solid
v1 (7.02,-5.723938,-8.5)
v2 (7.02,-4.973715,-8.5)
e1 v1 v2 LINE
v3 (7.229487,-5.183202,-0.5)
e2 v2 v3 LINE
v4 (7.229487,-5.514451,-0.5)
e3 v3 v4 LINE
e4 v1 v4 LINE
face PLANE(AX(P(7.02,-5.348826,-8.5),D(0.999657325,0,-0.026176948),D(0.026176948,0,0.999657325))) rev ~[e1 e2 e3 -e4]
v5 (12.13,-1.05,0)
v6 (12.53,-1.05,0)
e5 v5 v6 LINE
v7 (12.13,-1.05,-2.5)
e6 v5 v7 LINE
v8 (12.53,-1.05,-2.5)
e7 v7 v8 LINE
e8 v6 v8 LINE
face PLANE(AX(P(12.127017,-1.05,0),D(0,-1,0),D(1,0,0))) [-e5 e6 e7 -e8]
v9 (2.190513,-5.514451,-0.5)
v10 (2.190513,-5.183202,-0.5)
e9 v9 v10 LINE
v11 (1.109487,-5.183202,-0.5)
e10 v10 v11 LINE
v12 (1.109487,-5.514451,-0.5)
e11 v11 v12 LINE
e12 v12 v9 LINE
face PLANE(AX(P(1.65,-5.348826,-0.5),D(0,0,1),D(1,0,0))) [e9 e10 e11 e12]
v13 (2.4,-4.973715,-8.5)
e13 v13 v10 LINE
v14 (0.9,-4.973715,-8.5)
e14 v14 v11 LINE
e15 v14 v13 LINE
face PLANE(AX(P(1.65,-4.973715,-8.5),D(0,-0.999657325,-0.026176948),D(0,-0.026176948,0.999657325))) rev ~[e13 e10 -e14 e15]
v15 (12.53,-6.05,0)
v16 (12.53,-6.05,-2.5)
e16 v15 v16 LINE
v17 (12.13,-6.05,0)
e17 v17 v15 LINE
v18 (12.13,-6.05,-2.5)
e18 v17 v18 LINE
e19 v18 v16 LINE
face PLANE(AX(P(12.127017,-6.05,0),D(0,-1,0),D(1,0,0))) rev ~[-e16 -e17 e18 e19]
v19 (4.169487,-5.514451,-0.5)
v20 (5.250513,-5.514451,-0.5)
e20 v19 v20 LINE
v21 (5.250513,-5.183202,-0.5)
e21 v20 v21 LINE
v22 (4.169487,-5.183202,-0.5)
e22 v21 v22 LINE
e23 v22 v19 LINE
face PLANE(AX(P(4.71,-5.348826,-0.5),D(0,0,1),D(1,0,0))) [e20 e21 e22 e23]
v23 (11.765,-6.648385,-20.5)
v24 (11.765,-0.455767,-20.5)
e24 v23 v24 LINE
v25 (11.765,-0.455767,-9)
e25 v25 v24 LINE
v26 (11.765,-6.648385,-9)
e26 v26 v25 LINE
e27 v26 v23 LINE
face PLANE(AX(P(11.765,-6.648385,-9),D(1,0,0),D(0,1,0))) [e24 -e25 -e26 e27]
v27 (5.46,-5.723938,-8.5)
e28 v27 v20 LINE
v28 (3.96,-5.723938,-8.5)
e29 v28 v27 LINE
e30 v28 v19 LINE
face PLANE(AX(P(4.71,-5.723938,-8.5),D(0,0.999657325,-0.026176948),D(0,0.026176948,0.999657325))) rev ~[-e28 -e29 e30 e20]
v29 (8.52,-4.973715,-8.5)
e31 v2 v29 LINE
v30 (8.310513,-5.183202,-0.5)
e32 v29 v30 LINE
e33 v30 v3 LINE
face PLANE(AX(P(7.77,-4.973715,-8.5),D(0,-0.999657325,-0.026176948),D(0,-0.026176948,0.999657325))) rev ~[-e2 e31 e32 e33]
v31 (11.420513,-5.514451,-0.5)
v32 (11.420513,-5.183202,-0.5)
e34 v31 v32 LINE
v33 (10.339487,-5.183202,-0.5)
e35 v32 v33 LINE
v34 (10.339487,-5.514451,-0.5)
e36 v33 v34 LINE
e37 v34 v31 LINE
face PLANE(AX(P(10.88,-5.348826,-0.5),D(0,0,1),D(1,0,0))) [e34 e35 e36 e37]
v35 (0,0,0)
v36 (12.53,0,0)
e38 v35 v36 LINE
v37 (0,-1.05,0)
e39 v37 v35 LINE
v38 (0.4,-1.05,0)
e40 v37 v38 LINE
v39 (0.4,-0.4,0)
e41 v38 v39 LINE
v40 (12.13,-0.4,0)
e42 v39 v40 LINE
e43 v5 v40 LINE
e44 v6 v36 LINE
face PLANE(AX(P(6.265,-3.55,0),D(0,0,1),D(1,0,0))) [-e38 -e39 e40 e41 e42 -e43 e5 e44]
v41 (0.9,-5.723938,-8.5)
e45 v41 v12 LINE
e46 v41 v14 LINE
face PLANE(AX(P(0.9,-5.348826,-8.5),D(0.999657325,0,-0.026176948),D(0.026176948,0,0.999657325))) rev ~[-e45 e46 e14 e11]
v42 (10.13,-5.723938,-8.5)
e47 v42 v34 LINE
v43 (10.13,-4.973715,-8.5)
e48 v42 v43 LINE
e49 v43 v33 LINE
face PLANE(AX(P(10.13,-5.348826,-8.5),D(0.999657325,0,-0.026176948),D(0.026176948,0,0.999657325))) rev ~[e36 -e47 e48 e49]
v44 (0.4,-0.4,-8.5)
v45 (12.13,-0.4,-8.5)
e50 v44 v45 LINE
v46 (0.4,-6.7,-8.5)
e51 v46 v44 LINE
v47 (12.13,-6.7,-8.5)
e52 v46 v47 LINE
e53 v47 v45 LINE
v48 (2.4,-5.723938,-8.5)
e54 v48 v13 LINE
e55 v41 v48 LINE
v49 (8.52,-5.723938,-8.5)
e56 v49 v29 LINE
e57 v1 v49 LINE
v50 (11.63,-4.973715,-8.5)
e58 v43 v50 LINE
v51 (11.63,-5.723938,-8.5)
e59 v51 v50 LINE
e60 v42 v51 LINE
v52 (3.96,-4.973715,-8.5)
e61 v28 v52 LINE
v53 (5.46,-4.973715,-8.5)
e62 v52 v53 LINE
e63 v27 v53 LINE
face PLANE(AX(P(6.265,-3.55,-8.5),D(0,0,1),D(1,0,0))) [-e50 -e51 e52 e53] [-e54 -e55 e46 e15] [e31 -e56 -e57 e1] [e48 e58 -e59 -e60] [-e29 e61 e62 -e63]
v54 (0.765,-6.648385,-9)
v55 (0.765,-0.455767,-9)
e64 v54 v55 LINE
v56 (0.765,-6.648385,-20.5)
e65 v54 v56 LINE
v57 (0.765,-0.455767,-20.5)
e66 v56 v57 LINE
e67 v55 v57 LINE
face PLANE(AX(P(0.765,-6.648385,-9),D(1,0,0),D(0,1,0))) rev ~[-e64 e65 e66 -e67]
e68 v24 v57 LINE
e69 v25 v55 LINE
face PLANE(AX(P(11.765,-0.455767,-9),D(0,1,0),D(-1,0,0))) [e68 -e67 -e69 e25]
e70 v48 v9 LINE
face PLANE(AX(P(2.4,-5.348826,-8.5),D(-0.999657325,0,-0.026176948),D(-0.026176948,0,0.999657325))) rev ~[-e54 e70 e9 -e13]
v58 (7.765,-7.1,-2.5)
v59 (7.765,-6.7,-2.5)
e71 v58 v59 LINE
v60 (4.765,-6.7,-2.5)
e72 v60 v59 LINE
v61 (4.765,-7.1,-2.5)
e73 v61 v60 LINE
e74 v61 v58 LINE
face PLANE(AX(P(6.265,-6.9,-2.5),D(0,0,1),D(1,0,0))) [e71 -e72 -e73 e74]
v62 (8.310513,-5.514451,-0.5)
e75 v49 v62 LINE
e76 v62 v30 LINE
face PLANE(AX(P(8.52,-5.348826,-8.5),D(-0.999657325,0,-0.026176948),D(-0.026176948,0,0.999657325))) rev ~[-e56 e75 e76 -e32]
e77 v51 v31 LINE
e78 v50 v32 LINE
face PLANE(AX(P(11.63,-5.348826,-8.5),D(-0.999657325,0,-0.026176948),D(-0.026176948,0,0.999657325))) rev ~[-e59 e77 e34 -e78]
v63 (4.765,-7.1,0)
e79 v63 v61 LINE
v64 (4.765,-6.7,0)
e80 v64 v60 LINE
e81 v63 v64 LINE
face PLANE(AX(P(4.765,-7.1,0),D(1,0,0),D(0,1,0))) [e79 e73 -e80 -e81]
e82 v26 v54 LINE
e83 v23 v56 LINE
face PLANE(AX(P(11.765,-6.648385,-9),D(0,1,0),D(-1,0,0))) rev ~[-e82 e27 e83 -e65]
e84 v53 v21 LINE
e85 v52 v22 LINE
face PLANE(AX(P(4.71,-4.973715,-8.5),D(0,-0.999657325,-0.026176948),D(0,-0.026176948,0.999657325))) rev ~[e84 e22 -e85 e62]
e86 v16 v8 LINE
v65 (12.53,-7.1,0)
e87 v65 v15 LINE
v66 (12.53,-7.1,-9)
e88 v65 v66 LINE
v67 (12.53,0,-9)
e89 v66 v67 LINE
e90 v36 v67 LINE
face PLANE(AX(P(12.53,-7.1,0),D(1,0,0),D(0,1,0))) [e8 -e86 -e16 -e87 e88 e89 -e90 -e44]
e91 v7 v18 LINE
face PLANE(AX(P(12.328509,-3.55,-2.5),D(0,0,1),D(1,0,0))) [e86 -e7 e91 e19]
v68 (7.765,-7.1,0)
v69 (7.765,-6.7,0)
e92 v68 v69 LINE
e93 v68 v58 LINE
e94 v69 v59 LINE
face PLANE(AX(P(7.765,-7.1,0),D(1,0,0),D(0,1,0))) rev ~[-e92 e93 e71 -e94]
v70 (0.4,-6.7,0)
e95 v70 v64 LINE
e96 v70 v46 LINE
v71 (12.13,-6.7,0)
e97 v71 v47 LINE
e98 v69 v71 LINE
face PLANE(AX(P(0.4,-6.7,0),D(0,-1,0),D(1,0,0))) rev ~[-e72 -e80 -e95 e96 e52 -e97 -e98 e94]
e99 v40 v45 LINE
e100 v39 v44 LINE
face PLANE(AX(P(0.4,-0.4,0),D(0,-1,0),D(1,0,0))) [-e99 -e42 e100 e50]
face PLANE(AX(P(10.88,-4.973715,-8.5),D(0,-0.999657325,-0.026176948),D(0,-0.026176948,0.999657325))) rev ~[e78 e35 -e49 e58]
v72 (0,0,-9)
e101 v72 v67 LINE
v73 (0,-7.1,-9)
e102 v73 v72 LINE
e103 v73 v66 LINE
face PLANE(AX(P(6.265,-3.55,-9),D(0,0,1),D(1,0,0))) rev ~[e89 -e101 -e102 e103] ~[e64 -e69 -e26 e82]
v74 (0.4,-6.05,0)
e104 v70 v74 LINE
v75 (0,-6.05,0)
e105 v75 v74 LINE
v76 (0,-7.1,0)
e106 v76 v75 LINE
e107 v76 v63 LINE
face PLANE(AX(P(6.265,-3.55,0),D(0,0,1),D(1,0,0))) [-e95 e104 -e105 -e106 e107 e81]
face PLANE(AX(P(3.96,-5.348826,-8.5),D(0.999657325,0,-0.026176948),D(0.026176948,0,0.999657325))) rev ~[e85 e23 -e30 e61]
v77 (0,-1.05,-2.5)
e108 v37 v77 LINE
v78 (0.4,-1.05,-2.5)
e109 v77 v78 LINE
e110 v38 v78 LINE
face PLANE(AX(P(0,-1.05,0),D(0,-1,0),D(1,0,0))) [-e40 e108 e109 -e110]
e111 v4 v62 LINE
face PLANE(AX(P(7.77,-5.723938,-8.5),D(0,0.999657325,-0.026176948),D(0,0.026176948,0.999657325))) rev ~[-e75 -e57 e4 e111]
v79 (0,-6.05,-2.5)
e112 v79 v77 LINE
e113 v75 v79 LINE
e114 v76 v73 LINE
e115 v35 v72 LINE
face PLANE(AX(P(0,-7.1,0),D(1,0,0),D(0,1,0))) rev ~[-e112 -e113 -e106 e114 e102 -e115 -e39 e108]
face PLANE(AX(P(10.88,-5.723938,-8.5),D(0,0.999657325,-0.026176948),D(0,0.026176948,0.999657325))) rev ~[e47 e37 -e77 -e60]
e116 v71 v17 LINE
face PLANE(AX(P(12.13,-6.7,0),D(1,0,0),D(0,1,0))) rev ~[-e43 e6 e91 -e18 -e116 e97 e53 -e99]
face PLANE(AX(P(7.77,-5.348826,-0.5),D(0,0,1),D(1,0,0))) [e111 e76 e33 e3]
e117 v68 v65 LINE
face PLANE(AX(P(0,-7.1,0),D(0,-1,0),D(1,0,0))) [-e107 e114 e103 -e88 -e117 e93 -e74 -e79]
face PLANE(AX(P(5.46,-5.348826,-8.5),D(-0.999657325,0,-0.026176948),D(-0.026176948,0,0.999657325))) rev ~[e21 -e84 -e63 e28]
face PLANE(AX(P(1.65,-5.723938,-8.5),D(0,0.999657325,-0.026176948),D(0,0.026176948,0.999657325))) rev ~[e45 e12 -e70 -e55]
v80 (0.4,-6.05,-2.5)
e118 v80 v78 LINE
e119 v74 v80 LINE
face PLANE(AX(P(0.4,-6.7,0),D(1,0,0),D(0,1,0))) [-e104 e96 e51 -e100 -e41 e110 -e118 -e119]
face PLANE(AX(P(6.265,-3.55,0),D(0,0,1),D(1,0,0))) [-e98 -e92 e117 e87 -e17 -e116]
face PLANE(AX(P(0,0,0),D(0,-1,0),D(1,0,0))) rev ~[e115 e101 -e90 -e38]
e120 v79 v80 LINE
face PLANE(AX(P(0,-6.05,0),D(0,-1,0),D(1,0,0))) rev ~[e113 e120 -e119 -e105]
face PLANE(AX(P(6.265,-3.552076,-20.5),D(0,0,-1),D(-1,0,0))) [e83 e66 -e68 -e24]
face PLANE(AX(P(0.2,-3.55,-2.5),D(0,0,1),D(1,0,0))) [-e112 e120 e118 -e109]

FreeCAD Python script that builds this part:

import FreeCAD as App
import Part
import Sketcher

V = App.Vector


def add_polygon(sketch, points):
    """Adds a closed chain of lines whose ends are joined by coincident constraints."""
    first, n = sketch.GeometryCount, len(points)
    for a, b in zip(points, points[1:] + points[:1]):
        sketch.addGeometry(Part.LineSegment(App.Vector(*a, 0), App.Vector(*b, 0)), False)
    for i in range(n):
        sketch.addConstraint(Sketcher.Constraint("Coincident", first + i, 2, first + (i + 1) % n, 1))

doc = App.newDocument("Part")
body = doc.addObject("PartDesign::Body", "Body")

sketch1 = body.newObject("Sketcher::SketchObject", "Sketch")
sketch1.AttachmentSupport = (doc.getObject("XY_Plane"), [""])
sketch1.MapMode = "FlatFace"
add_polygon(sketch1, [(0, 0), (0, -7.1), (12.53, -7.1), (12.53, 0)])
sketch1.addConstraint([
    Sketcher.Constraint("Vertical", 0),
    Sketcher.Constraint("Horizontal", 1),
    Sketcher.Constraint("Vertical", 2),
    Sketcher.Constraint("Horizontal", 3),
    Sketcher.Constraint("Coincident", 3, 2, -1, 1),
    Sketcher.Constraint("DistanceY", 0, 2, 0, 1, 7.1),
    Sketcher.Constraint("DistanceX", 1, 1, 1, 2, 12.53),
])
pad1 = body.newObject("PartDesign::Pad", "Pad")
pad1.Profile = sketch1
pad1.Length = 9
pad1.Reversed = True

sketch2 = body.newObject("Sketcher::SketchObject", "Sketch001")
sketch2.AttachmentSupport = (doc.getObject("XY_Plane"), [""])
sketch2.MapMode = "FlatFace"
add_polygon(sketch2, [(0.4, -0.4), (0.4, -6.7), (12.13, -6.7), (12.13, -0.4)])
sketch2.addConstraint([
    Sketcher.Constraint("Vertical", 0),
    Sketcher.Constraint("Horizontal", 1),
    Sketcher.Constraint("Vertical", 2),
    Sketcher.Constraint("Horizontal", 3),
    Sketcher.Constraint("DistanceY", 0, 2, 0, 1, 6.3),
    Sketcher.Constraint("DistanceX", 1, 1, 1, 2, 11.73),
    Sketcher.Constraint("DistanceX", -1, 1, 0, 2, 0.4),
    Sketcher.Constraint("DistanceY", 0, 2, -1, 1, 6.7),
])
pocket1 = body.newObject("PartDesign::Pocket", "Pocket")
pocket1.Profile = sketch2
pocket1.Length = 8.5

sketch3 = body.newObject("Sketcher::SketchObject", "Sketch002")
sketch3.AttachmentSupport = (doc.getObject("XY_Plane"), [""])
sketch3.MapMode = "FlatFace"
add_polygon(sketch3, [(0, -1.05), (0, -6.05), (0.4, -6.05), (0.4, -1.05)])
add_polygon(sketch3, [(12.127017, -1.05), (12.127017, -6.05), (12.53, -6.05), (12.53, -1.05)])
add_polygon(sketch3, [(4.765, -6.7), (4.765, -7.1), (7.765, -7.1), (7.765, -6.7)])
sketch3.addConstraint([
    Sketcher.Constraint("Vertical", 0),
    Sketcher.Constraint("Horizontal", 1),
    Sketcher.Constraint("Vertical", 2),
    Sketcher.Constraint("Horizontal", 3),
    Sketcher.Constraint("Vertical", 4),
    Sketcher.Constraint("Horizontal", 5),
    Sketcher.Constraint("Vertical", 6),
    Sketcher.Constraint("Horizontal", 7),
    Sketcher.Constraint("Vertical", 8),
    Sketcher.Constraint("Horizontal", 9),
    Sketcher.Constraint("Vertical", 10),
    Sketcher.Constraint("Horizontal", 11),
    Sketcher.Constraint("PointOnObject", 0, 2, -2),
    Sketcher.Constraint("Horizontal", 1, 2, 4, 2),
    Sketcher.Constraint("Horizontal", 3, 2, 6, 2),
    Sketcher.Constraint("Equal", 3, 8),
    Sketcher.Constraint("DistanceX", 9, 1, 9, 2, 3.0),
    Sketcher.Constraint("DistanceY", 0, 2, 0, 1, 5.0),
    Sketcher.Constraint("DistanceX", 1, 1, 1, 2, 0.4),
    Sketcher.Constraint("DistanceY", 8, 2, -1, 1, 7.1),
    Sketcher.Constraint("DistanceY", 0, 2, -1, 1, 6.05),
    Sketcher.Constraint("DistanceX", -1, 1, 5, 2, 12.53),
    Sketcher.Constraint("DistanceX", -1, 1, 8, 2, 4.765),
    Sketcher.Constraint("DistanceX", 5, 1, 5, 2, 0.402983),
])
pocket2 = body.newObject("PartDesign::Pocket", "Pocket001")
pocket2.Profile = sketch3
pocket2.Length = 2.5

sketch4 = body.newObject("Sketcher::SketchObject", "Sketch003")
sketch4.AttachmentSupport = (doc.getObject("XY_Plane"), [""])
sketch4.MapMode = "FlatFace"
sketch4.AttachmentOffset = App.Placement(V(0, 0, -8.5), App.Rotation())
add_polygon(sketch4, [(0.9, -4.973715), (0.9, -5.723938), (2.4, -5.723938), (2.4, -4.973715)])
add_polygon(sketch4, [(3.96, -4.973715), (3.96, -5.723938), (5.46, -5.723938), (5.46, -4.973715)])
add_polygon(sketch4, [(7.02, -4.973715), (7.02, -5.723938), (8.52, -5.723938), (8.52, -4.973715)])
add_polygon(sketch4, [(10.13, -4.973715), (10.13, -5.723938), (11.63, -5.723938), (11.63, -4.973715)])
sketch4.addConstraint([
    Sketcher.Constraint("Vertical", 0),
    Sketcher.Constraint("Horizontal", 1),
    Sketcher.Constraint("Vertical", 2),
    Sketcher.Constraint("Horizontal", 3),
    Sketcher.Constraint("Vertical", 4),
    Sketcher.Constraint("Horizontal", 5),
    Sketcher.Constraint("Vertical", 6),
    Sketcher.Constraint("Horizontal", 7),
    Sketcher.Constraint("Vertical", 8),
    Sketcher.Constraint("Horizontal", 9),
    Sketcher.Constraint("Vertical", 10),
    Sketcher.Constraint("Horizontal", 11),
    Sketcher.Constraint("Vertical", 12),
    Sketcher.Constraint("Horizontal", 13),
    Sketcher.Constraint("Vertical", 14),
    Sketcher.Constraint("Horizontal", 15),
    Sketcher.Constraint("Horizontal", 1, 2, 4, 2),
    Sketcher.Constraint("Horizontal", 3, 2, 6, 2),
    Sketcher.Constraint("Horizontal", 5, 2, 8, 2),
    Sketcher.Constraint("Horizontal", 7, 2, 10, 2),
    Sketcher.Constraint("Horizontal", 9, 2, 12, 2),
    Sketcher.Constraint("Horizontal", 11, 2, 14, 2),
    Sketcher.Constraint("Equal", 3, 5),
    Sketcher.Constraint("Equal", 7, 9),
    Sketcher.Constraint("Equal", 11, 13),
    Sketcher.Constraint("DistanceX", 1, 1, 1, 2, 1.5),
    Sketcher.Constraint("DistanceX", -1, 1, 0, 2, 0.9),
    Sketcher.Constraint("DistanceX", -1, 1, 4, 2, 3.96),
    Sketcher.Constraint("DistanceX", -1, 1, 8, 2, 7.02),
    Sketcher.Constraint("DistanceX", -1, 1, 12, 2, 10.13),
    Sketcher.Constraint("DistanceY", 0, 2, 0, 1, 0.750223),
    Sketcher.Constraint("DistanceY", 0, 2, -1, 1, 5.723938),
])
pad2 = body.newObject("PartDesign::Pad", "Pad001")
pad2.Profile = sketch4
pad2.Length = 8
pad2.TaperAngle = -1.5

sketch5 = body.newObject("Sketcher::SketchObject", "Sketch004")
sketch5.AttachmentSupport = (doc.getObject("XY_Plane"), [""])
sketch5.MapMode = "FlatFace"
sketch5.AttachmentOffset = App.Placement(V(0, 0, -9), App.Rotation())
add_polygon(sketch5, [(11.765, -0.455767), (11.765, -6.648385), (0.765, -6.648385), (0.765, -0.455767)])
sketch5.addConstraint([
    Sketcher.Constraint("Vertical", 0),
    Sketcher.Constraint("Horizontal", 1),
    Sketcher.Constraint("Vertical", 2),
    Sketcher.Constraint("Horizontal", 3),
    Sketcher.Constraint("DistanceX", 1, 2, 1, 1, 11.0),
    Sketcher.Constraint("DistanceX", -1, 1, 0, 2, 11.765),
    Sketcher.Constraint("DistanceY", 0, 2, 0, 1, 6.192618),
    Sketcher.Constraint("DistanceY", 0, 2, -1, 1, 6.648385),
])
pad3 = body.newObject("PartDesign::Pad", "Pad002")
pad3.Profile = sketch5
pad3.Length = 11.5
pad3.Reversed = True

doc.recompute()
